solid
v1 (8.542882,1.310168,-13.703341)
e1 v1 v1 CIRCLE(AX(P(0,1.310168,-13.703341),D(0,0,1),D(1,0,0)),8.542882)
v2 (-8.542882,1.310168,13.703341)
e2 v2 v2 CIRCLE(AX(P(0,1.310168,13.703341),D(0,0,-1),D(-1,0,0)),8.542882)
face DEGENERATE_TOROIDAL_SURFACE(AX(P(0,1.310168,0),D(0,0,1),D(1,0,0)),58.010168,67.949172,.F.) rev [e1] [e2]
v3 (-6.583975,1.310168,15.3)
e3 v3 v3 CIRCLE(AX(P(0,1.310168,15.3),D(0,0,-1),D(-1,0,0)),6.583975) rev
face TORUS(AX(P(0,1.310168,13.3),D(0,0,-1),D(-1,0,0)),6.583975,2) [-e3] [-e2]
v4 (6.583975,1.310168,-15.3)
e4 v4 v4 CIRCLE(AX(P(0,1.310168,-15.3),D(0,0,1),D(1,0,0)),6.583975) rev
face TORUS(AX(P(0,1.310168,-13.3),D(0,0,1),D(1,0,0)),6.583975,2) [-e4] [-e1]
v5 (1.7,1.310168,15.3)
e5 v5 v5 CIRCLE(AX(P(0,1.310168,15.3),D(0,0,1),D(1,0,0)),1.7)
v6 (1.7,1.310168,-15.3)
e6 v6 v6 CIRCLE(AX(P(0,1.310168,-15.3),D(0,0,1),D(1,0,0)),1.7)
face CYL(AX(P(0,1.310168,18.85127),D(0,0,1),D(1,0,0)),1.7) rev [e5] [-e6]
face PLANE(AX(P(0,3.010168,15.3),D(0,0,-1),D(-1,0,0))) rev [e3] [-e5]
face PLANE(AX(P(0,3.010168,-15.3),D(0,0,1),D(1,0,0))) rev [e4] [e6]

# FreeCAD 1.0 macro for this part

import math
import FreeCAD as App
import Part
import Sketcher
from FreeCAD import Vector


def edges_at(feature, points):
    """Names of the edges that pass closest to the given points."""
    edges = feature.Shape.Edges
    near = lambda p: min(range(len(edges)), key=lambda i: edges[i].distToShape(Part.Vertex(*p))[0])
    return sorted({f"Edge{near(p) + 1}" for p in points})

doc = App.newDocument("Part")
body = doc.addObject("PartDesign::Body", "Body")

sketch1 = body.newObject("Sketcher::SketchObject", "Sketch")
sketch1.AttachmentSupport = (doc.getObject("YZ_Plane"), [""])
sketch1.MapMode = "FlatFace"
sketch1.addGeometry(Part.LineSegment(Vector(3, 15, 0), Vector(3, -15, 0)), False)
sketch1.addGeometry(Part.LineSegment(Vector(3, -15, 0), Vector(10, -15, 0)), False)
sketch1.addGeometry(Part.ArcOfCircle(Part.Circle(Vector(-57, 0, 0), Vector(0, 0, 1), 68), math.radians(-13), math.radians(13)), False)
sketch1.addGeometry(Part.LineSegment(Vector(10, 15, 0), Vector(3, 15, 0)), False)
sketch1.addGeometry(Part.LineSegment(Vector(1, 15, 0), Vector(1, -15, 0)), True)
sketch1.addConstraint(Sketcher.Constraint("Coincident", 0, 2, 1, 1))
sketch1.addConstraint(Sketcher.Constraint("Coincident", 1, 2, 2, 1))
sketch1.addConstraint(Sketcher.Constraint("Coincident", 2, 2, 3, 1))
sketch1.addConstraint(Sketcher.Constraint("Coincident", 3, 2, 0, 1))
sketch1.addConstraint(Sketcher.Constraint("Vertical", 0))
sketch1.addConstraint(Sketcher.Constraint("Horizontal", 1))
sketch1.addConstraint(Sketcher.Constraint("Horizontal", 3))
sketch1.addConstraint(Sketcher.Constraint("Vertical", 4))
sketch1.addConstraint(Sketcher.Constraint("Symmetric", 1, 2, 2, 2, -1))
sketch1.addConstraint(Sketcher.Constraint("Horizontal", 3, 2, 4, 1))
sketch1.addConstraint(Sketcher.Constraint("Horizontal", 1, 2, 4, 2))
sketch1.addConstraint(Sketcher.Constraint("DistanceY", 0, 2, 0, 1, 30.6))
sketch1.addConstraint(Sketcher.Constraint("DistanceX", 2, 3, -1, 1, 56.7))
sketch1.addConstraint(Sketcher.Constraint("DistanceX", 4, 1, 3, 2, 1.7))
sketch1.addConstraint(Sketcher.Constraint("Radius", 2, 67.949172))
sketch1.addConstraint(Sketcher.Constraint("DistanceX", 1, 1, 1, 2, 6.494062))
revolution = body.newObject("PartDesign::Revolution", "Revolution")
revolution.Profile = sketch1
revolution.ReferenceAxis = (sketch1, ["Axis0"])
revolution.Angle = 360
doc.recompute()

fillet = body.newObject("PartDesign::Fillet", "Fillet")
fillet.Base = (revolution, edges_at(revolution, [(-8.194, 1.31, 15.3), (-8.194, 1.31, -15.3)]))
fillet.Radius = 2

doc.recompute()
